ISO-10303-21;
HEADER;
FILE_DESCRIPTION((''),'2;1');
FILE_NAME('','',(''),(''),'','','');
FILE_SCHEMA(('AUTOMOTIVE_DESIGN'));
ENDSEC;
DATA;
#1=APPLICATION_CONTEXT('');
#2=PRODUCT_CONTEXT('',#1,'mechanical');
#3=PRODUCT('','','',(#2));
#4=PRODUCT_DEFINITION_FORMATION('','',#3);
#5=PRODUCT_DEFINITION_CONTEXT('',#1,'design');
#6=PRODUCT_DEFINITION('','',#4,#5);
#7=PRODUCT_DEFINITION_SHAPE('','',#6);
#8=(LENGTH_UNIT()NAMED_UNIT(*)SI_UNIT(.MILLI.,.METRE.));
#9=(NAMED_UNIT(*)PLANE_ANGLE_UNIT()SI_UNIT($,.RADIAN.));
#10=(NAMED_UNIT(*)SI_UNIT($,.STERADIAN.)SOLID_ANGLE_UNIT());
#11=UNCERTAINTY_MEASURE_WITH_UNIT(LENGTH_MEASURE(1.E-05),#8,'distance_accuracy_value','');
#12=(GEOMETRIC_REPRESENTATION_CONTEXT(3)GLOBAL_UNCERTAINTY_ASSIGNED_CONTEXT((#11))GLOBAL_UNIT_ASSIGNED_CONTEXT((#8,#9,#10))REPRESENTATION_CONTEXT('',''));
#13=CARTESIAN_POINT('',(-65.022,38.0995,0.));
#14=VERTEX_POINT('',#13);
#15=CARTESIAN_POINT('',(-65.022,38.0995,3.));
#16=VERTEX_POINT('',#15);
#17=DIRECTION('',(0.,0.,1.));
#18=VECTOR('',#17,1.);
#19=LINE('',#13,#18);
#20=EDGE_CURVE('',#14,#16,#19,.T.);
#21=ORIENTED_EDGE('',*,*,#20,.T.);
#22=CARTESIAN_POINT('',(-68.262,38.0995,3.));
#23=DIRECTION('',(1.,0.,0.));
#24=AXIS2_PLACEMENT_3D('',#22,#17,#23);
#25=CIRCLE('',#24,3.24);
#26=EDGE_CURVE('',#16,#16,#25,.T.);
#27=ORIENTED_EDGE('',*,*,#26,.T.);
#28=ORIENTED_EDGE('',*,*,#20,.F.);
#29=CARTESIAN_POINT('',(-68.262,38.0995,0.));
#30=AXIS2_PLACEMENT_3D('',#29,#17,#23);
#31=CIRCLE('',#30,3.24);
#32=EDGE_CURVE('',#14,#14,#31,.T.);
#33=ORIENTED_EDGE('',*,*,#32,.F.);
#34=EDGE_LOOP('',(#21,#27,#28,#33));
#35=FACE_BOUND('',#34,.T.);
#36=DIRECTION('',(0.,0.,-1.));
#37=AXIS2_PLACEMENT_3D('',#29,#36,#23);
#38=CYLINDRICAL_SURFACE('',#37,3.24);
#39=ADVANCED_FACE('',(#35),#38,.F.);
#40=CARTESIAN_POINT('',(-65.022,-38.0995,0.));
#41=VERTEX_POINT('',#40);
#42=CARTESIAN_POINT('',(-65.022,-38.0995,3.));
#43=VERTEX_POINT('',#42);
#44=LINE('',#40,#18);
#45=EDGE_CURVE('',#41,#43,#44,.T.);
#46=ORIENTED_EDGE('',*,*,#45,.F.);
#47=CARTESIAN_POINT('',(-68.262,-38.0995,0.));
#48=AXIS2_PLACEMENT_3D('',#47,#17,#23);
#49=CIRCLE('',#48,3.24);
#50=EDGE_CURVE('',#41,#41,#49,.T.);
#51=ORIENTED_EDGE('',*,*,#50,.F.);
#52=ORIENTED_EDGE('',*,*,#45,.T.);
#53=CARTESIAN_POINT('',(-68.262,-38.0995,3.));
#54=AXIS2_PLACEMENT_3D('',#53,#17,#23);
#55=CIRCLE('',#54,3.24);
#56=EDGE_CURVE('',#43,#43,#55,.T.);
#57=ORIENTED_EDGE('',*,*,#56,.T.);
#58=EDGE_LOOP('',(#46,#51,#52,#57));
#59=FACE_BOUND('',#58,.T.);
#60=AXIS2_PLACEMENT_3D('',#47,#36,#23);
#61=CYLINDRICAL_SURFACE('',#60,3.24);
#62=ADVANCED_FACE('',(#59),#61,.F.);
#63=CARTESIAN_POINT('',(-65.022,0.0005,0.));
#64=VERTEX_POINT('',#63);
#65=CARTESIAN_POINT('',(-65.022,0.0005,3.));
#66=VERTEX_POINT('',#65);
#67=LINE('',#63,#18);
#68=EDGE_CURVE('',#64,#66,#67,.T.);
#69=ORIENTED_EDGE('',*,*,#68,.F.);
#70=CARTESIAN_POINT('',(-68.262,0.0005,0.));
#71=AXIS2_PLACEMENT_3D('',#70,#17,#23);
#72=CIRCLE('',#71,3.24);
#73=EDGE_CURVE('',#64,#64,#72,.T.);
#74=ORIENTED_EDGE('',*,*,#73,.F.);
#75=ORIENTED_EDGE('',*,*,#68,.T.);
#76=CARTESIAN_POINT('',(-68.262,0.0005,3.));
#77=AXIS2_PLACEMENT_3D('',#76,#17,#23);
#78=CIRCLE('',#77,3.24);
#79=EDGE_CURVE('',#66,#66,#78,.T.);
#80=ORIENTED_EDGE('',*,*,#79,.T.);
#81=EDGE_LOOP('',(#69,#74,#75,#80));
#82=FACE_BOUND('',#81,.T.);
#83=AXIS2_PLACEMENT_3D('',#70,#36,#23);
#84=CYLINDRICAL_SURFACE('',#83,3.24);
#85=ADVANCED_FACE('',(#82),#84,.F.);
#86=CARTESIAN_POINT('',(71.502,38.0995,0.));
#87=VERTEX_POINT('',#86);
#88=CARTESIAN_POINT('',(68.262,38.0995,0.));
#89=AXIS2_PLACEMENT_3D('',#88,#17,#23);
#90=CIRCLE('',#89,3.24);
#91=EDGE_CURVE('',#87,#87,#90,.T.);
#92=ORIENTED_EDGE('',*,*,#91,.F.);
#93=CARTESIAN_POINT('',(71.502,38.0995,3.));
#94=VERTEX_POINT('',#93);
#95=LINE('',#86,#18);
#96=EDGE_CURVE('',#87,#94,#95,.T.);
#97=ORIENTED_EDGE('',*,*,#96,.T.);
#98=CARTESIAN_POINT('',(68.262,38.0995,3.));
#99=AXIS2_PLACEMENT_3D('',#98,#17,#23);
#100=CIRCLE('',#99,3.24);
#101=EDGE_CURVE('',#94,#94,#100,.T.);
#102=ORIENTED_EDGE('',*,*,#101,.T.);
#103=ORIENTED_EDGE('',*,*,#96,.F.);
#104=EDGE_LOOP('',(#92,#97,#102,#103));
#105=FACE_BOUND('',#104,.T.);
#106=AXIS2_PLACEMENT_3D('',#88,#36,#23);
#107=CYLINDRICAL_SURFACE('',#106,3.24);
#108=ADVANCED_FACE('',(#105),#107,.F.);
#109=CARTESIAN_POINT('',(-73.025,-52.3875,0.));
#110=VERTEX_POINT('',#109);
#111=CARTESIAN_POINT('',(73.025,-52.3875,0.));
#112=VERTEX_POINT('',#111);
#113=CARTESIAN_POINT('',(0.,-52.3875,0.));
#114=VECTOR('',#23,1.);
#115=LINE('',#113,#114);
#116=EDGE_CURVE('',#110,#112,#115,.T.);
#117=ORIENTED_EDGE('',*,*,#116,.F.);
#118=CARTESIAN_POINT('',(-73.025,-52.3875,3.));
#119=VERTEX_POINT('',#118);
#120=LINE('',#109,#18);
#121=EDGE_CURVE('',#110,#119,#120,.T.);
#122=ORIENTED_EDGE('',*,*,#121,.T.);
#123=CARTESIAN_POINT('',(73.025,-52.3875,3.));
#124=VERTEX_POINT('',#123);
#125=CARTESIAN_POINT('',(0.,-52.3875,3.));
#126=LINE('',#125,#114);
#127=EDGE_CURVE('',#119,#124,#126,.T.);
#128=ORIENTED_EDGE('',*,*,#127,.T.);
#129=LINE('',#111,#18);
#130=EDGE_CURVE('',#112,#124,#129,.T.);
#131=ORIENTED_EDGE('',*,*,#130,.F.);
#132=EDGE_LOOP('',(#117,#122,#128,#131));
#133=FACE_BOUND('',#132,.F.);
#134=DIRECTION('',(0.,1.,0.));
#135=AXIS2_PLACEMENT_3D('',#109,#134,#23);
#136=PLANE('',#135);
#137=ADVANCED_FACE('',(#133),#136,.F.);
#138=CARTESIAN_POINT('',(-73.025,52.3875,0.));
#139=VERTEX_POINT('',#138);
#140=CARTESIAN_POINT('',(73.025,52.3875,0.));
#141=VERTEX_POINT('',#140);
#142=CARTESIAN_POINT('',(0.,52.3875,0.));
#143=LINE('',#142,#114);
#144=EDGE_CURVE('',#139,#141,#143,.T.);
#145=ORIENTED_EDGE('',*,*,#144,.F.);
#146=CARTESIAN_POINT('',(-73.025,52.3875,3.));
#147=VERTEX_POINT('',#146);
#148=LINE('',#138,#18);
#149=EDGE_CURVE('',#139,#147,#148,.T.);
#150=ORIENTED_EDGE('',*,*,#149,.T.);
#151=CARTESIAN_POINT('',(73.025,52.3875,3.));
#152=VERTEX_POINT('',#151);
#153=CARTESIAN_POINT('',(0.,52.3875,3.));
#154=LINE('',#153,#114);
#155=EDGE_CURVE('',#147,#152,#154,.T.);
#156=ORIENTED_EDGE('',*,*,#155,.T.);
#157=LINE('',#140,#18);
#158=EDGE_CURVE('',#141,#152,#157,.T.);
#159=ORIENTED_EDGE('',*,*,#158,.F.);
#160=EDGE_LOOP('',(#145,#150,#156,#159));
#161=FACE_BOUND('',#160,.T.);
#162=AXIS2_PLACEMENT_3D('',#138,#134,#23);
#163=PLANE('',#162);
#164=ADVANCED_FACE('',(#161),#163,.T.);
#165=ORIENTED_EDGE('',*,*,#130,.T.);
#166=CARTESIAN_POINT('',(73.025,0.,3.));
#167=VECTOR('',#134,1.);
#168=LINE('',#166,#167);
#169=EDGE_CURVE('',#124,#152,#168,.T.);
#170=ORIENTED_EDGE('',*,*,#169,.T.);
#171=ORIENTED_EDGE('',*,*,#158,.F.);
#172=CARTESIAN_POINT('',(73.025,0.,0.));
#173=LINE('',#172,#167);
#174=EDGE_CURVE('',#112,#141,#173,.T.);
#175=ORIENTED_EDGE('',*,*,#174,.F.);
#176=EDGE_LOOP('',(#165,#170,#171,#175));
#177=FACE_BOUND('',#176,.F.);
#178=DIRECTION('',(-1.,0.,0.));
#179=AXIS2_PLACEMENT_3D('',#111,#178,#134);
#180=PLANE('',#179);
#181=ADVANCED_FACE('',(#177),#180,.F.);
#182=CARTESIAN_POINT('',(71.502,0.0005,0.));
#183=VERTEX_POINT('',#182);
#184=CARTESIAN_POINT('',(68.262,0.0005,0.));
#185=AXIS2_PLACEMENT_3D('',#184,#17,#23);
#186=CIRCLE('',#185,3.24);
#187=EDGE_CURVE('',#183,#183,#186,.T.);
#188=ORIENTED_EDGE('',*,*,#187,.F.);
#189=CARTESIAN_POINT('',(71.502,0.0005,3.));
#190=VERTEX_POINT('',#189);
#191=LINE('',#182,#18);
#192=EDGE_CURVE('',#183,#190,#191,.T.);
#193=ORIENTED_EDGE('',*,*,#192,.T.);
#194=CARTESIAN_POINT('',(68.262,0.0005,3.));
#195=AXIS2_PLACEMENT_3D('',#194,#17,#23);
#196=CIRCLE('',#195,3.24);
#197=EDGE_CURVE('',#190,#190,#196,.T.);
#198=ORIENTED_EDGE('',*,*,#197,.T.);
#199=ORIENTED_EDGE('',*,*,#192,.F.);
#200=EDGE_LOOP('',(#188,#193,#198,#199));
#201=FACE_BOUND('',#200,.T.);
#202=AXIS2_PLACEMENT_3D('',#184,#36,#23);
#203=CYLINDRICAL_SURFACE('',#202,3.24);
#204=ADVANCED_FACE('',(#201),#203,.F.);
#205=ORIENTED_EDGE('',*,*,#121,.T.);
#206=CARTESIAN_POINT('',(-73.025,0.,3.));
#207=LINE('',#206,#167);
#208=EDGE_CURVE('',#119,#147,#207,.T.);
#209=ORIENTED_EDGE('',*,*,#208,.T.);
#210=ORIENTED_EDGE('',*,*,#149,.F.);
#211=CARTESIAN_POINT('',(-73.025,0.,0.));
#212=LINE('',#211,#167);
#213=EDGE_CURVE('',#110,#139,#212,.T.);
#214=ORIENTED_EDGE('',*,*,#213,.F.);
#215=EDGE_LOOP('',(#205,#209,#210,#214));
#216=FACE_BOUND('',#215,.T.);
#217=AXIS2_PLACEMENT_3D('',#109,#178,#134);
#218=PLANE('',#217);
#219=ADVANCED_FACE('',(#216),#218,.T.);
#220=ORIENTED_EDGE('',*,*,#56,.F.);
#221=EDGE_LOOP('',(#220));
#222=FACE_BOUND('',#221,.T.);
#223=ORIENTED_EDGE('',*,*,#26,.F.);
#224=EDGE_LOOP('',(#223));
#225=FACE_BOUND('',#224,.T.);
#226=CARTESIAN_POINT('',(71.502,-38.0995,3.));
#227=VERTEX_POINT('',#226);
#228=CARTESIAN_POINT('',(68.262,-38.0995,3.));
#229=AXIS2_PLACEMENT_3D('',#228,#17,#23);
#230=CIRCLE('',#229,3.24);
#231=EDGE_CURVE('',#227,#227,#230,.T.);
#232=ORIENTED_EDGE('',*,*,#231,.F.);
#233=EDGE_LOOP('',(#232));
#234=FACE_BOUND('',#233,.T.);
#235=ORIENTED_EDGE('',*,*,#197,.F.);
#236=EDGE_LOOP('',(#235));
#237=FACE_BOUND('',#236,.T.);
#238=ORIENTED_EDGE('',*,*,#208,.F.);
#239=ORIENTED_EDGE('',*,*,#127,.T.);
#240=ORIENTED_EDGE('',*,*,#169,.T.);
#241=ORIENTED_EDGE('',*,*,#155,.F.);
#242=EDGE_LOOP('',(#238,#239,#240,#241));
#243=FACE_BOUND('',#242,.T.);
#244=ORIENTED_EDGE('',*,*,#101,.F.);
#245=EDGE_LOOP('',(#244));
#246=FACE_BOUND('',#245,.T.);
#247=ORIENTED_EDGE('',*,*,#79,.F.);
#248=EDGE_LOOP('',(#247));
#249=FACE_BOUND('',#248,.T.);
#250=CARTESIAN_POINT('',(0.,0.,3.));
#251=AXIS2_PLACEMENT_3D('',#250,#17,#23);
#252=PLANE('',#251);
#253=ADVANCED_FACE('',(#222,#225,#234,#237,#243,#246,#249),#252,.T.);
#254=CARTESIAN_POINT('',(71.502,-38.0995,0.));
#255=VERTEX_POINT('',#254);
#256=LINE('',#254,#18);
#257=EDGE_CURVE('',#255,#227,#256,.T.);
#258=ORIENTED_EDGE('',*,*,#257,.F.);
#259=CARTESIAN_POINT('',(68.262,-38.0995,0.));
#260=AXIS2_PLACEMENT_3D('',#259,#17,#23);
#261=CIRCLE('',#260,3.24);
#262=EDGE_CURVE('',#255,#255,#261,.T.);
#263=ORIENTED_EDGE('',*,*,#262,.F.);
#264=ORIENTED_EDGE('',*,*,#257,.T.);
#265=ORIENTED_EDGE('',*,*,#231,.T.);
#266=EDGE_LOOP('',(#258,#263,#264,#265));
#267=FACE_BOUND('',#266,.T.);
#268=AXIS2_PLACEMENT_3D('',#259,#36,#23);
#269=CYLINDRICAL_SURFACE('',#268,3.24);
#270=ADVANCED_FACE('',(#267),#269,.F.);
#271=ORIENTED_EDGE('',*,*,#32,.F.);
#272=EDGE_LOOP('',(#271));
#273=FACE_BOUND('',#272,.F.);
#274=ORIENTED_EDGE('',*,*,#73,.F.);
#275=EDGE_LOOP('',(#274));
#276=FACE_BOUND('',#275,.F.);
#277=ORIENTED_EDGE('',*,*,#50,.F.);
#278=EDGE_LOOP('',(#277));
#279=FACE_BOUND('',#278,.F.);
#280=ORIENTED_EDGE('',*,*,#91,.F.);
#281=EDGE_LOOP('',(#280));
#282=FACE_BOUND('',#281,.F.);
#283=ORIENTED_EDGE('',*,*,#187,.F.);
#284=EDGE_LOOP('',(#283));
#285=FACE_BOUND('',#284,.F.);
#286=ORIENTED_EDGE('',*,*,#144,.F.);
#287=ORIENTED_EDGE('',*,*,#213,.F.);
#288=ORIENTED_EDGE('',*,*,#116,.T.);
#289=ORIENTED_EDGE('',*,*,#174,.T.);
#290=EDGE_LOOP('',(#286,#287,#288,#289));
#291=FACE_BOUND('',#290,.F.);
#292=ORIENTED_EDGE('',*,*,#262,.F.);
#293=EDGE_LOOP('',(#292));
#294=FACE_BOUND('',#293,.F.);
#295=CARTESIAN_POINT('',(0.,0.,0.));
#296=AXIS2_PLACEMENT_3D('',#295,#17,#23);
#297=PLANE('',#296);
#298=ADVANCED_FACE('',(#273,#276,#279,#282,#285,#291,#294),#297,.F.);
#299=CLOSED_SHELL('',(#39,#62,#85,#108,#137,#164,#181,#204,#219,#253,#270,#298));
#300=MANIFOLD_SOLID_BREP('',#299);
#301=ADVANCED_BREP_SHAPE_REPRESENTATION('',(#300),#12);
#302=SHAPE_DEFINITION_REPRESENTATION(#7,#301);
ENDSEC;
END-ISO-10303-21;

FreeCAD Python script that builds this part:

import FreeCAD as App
import Part
import Sketcher
Q = App.Units.Quantity


def add_polygon(sketch, points):
    """Adds a closed chain of lines whose ends are joined by coincident constraints."""
    first, n = sketch.GeometryCount, len(points)
    for a, b in zip(points, points[1:] + points[:1]):
        sketch.addGeometry(Part.LineSegment(App.Vector(*a, 0), App.Vector(*b, 0)), False)
    for i in range(n):
        sketch.addConstraint(Sketcher.Constraint("Coincident", first + i, 2, first + (i + 1) % n, 1))

doc = App.newDocument("Part")
body = doc.addObject("PartDesign::Body", "Body")

# Sketch on XY plane
sketch1 = doc.addObject("Sketcher::SketchObject", "Sketch")
body.addObject(sketch1)
sketch1.AttachmentSupport = (doc.XY_Plane, [""])
sketch1.MapMode = "FlatFace"
add_polygon(sketch1, [(-73, 52.4), (-73, -52.4), (73, -52.4), (73, 52.4)])  # lines 0-3
sketch1.addGeometry(Part.Circle(App.Vector(-68.3, -38.1, 0), App.Vector(0, 0, 1), 3.2), False)  # 4
sketch1.addGeometry(Part.Circle(App.Vector(68.3, -38.1, 0), App.Vector(0, 0, 1), 3.2), False)  # 5
sketch1.addGeometry(Part.Circle(App.Vector(-68.3, 0, 0), App.Vector(0, 0, 1), 3.2), False)  # 6
sketch1.addGeometry(Part.Circle(App.Vector(-68.3, 38.1, 0), App.Vector(0, 0, 1), 3.2), False)  # 7
sketch1.addGeometry(Part.Circle(App.Vector(68.3, 0, 0), App.Vector(0, 0, 1), 3.2), False)  # 8
sketch1.addGeometry(Part.Circle(App.Vector(68.3, 38.1, 0), App.Vector(0, 0, 1), 3.2), False)  # 9
sketch1.addConstraint(Sketcher.Constraint("Vertical", 0))
sketch1.addConstraint(Sketcher.Constraint("Horizontal", 1))
sketch1.addConstraint(Sketcher.Constraint("Vertical", 2))
sketch1.addConstraint(Sketcher.Constraint("Horizontal", 3))
sketch1.addConstraint(Sketcher.Constraint("Equal", 4, 5))
sketch1.addConstraint(Sketcher.Constraint("Equal", 5, 6))
sketch1.addConstraint(Sketcher.Constraint("Equal", 6, 7))
sketch1.addConstraint(Sketcher.Constraint("Equal", 7, 8))
sketch1.addConstraint(Sketcher.Constraint("Equal", 8, 9))
sketch1.addConstraint(Sketcher.Constraint("Symmetric", 5, 3, 7, 3, -1, 1))
sketch1.addConstraint(Sketcher.Constraint("Symmetric", 4, 3, 9, 3, -1, 1))
sketch1.addConstraint(Sketcher.Constraint("Symmetric", 0, 2, 2, 2, -1, 1))
sketch1.addConstraint(Sketcher.Constraint("Symmetric", 4, 3, 5, 3, -2))
sketch1.addConstraint(Sketcher.Constraint("Symmetric", 6, 3, 8, 3, -2))
sketch1.addConstraint(Sketcher.Constraint("Vertical", 4, 3, 6, 3))
sketch1.addConstraint(Sketcher.Constraint("DistanceX", 1, 1, 1, 2, Q("5.75 in")))
sketch1.addConstraint(Sketcher.Constraint("DistanceY", 4, 3, 6, 3, Q("1.5 in")))
sketch1.addConstraint(Sketcher.Constraint("Diameter", 4, Q("6.48 mm")))
sketch1.addConstraint(Sketcher.Constraint("DistanceY", 0, 2, 0, 1, Q("4.125 in")))
sketch1.addConstraint(Sketcher.Constraint("DistanceX", 4, 3, -1, 1, Q("68.262 mm")))
sketch1.addConstraint(Sketcher.Constraint("DistanceY", 4, 3, -1, 1, Q("38.0995 mm")))
pad1 = doc.addObject("PartDesign::Pad", "Pad")
body.addObject(pad1)
pad1.Profile = sketch1
pad1.Length = 3

doc.recompute()
